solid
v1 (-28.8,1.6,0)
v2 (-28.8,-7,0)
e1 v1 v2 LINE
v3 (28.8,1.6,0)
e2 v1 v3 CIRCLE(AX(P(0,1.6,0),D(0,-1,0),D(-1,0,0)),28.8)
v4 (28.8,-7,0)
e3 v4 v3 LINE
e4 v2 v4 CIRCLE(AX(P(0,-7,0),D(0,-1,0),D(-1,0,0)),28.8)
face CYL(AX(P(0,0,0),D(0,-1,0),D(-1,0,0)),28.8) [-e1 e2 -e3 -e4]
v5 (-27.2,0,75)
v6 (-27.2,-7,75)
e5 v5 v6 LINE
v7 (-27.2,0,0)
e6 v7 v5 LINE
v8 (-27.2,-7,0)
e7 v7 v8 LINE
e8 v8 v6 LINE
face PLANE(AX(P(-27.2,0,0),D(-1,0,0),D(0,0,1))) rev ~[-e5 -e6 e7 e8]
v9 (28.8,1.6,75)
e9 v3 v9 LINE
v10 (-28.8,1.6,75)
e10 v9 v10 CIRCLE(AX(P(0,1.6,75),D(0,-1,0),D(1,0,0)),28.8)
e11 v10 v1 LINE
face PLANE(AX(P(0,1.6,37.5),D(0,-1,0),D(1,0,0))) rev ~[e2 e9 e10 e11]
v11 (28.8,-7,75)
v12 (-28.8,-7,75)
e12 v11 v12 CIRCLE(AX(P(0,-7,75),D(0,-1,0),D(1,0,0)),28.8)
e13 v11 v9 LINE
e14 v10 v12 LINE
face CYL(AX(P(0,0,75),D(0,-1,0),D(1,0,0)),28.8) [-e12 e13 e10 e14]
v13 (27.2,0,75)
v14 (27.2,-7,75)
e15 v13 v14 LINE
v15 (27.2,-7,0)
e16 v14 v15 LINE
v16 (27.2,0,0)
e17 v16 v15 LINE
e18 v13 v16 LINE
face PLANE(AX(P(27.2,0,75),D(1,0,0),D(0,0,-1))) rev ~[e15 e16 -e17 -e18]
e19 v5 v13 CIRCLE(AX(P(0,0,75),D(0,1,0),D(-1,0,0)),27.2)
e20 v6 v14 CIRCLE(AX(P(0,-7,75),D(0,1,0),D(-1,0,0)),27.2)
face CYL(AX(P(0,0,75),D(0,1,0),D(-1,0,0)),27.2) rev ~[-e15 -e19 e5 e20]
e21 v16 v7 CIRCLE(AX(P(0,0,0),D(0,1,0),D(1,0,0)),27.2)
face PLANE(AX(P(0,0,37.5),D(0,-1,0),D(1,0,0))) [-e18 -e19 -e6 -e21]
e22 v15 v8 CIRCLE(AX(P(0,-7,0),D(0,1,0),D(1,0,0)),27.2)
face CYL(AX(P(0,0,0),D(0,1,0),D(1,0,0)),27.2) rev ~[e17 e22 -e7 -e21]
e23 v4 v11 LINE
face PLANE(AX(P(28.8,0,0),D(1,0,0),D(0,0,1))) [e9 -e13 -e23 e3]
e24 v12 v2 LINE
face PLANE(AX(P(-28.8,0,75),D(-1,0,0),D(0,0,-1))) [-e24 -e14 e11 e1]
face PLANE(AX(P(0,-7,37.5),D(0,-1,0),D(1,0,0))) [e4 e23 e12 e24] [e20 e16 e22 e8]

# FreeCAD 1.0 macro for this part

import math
import FreeCAD as App
import Part
import Sketcher

V = App.Vector

doc = App.newDocument("Part")
body = doc.addObject("PartDesign::Body", "Body")

# Sketch on XZ plane
sketch1 = body.newObject("Sketcher::SketchObject", "Sketch")
sketch1.AttachmentSupport = (doc.getObject("XZ_Plane"), [""])
sketch1.MapMode = "FlatFace"
sketch1.addGeometry([
    Part.ArcOfCircle(Part.Circle(V(0, 75, 0), V(0, 0, 1), 28.8), math.radians(0), math.radians(180)),  # 0
    Part.LineSegment(V(-28.8, 75, 0), V(-28.8, 0, 0)),  # 1
    Part.ArcOfCircle(Part.Circle(V(0, 0, 0), V(0, 0, 1), 28.8), math.radians(180), math.radians(360)),  # 2
    Part.LineSegment(V(28.8, 0, 0), V(28.8, 75, 0)),  # 3
    Part.ArcOfCircle(Part.Circle(V(0, 75, 0), V(0, 0, 1), 27.2), math.radians(0), math.radians(180)),  # 4
    Part.LineSegment(V(27.2, 75, 0), V(27.2, 0, 0)),  # 5
    Part.ArcOfCircle(Part.Circle(V(0, 0, 0), V(0, 0, 1), 27.2), math.radians(180), math.radians(360)),  # 6
    Part.LineSegment(V(-27.2, 0, 0), V(-27.2, 75, 0)),  # 7
], False)
sketch1.addConstraint([
    Sketcher.Constraint("Tangent", 0, 2, 1, 1),
    Sketcher.Constraint("Tangent", 1, 2, 2, 1),
    Sketcher.Constraint("Tangent", 2, 2, 3, 1),
    Sketcher.Constraint("Tangent", 3, 2, 0, 1),
    Sketcher.Constraint("Tangent", 4, 1, 5, 1),
    Sketcher.Constraint("Tangent", 5, 2, 6, 2),
    Sketcher.Constraint("Tangent", 6, 1, 7, 1),
    Sketcher.Constraint("Tangent", 7, 2, 4, 2),
    Sketcher.Constraint("Vertical", 1),
    Sketcher.Constraint("Vertical", 3),
    Sketcher.Constraint("Vertical", 5),
    Sketcher.Constraint("Vertical", 7),
    Sketcher.Constraint("Coincident", 2, 3, -1, 1),
    Sketcher.Constraint("Coincident", 6, 3, -1, 1),
    Sketcher.Constraint("Horizontal", 4, 3, 0, 2),
    Sketcher.Constraint("Radius", 0, 28.8),
    Sketcher.Constraint("Radius", 4, 27.2),
    Sketcher.Constraint("DistanceY", 1, 2, 1, 1, 75.0),
])
pad1 = body.newObject("PartDesign::Pad", "Pad")
pad1.Profile = sketch1
pad1.Length = 7

# Sketch on XZ plane
sketch2 = body.newObject("Sketcher::SketchObject", "Sketch001")
sketch2.AttachmentSupport = (doc.getObject("XZ_Plane"), [""])
sketch2.MapMode = "FlatFace"
sketch2.addGeometry([
    Part.ArcOfCircle(Part.Circle(V(0, 75, 0), V(0, 0, 1), 28.8), math.radians(0), math.radians(180)),
    Part.LineSegment(V(-28.8, 75, 0), V(-28.8, 0, 0)),
    Part.ArcOfCircle(Part.Circle(V(0, 0, 0), V(0, 0, 1), 28.8), math.radians(180), math.radians(360)),
    Part.LineSegment(V(28.8, 0, 0), V(28.8, 75, 0)),
], False)
sketch2.addConstraint([
    Sketcher.Constraint("Tangent", 0, 2, 1, 1),
    Sketcher.Constraint("Tangent", 1, 2, 2, 1),
    Sketcher.Constraint("Tangent", 2, 2, 3, 1),
    Sketcher.Constraint("Tangent", 3, 2, 0, 1),
    Sketcher.Constraint("Vertical", 1),
    Sketcher.Constraint("Vertical", 3),
    Sketcher.Constraint("Coincident", 2, 3, -1, 1),
    Sketcher.Constraint("Radius", 0, 28.8),
    Sketcher.Constraint("DistanceY", 1, 2, 1, 1, 75.0),
])
pad2 = body.newObject("PartDesign::Pad", "Pad001")
pad2.Profile = sketch2
pad2.Length = 1.6
pad2.Reversed = True

doc.recompute()
